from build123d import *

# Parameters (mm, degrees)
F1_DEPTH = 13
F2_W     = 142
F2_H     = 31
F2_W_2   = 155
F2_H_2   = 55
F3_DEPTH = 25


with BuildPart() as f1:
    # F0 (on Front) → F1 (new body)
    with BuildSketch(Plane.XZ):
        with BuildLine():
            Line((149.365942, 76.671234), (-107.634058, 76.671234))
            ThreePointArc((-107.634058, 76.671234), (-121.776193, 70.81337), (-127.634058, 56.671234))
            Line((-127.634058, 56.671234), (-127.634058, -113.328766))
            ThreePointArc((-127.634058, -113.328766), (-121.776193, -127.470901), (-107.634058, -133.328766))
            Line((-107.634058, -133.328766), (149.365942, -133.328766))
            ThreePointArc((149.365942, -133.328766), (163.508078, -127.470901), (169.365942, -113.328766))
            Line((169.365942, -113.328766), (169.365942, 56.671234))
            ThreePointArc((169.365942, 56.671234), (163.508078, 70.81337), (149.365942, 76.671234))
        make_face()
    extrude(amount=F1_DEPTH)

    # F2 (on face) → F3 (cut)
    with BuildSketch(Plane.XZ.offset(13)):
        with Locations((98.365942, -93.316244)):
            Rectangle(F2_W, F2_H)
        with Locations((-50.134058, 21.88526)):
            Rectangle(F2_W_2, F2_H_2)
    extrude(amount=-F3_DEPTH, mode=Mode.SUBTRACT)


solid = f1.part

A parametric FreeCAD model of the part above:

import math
import FreeCAD as App
import Part
import Sketcher

V = App.Vector


def add_polygon(sketch, points):
    """Adds a closed chain of lines whose ends are joined by coincident constraints."""
    first, n = sketch.GeometryCount, len(points)
    for a, b in zip(points, points[1:] + points[:1]):
        sketch.addGeometry(Part.LineSegment(App.Vector(*a, 0), App.Vector(*b, 0)), False)
    for i in range(n):
        sketch.addConstraint(Sketcher.Constraint("Coincident", first + i, 2, first + (i + 1) % n, 1))

doc = App.newDocument("Part")
body = doc.addObject("PartDesign::Body", "Body")

sketch1 = body.newObject("Sketcher::SketchObject", "Sketch")
sketch1.AttachmentSupport = (doc.getObject("XZ_Plane"), [""])
sketch1.MapMode = "FlatFace"
sketch1.addGeometry(Part.LineSegment(V(149, 77, 0), V(-108, 77, 0)), False)
sketch1.addGeometry(Part.ArcOfCircle(Part.Circle(V(-108, 57, 0), V(0, 0, 1), 20), math.radians(90), math.radians(180)), False)
sketch1.addGeometry(Part.LineSegment(V(-128, 57, 0), V(-128, -113, 0)), False)
sketch1.addGeometry(Part.ArcOfCircle(Part.Circle(V(-108, -113, 0), V(0, 0, 1), 20), math.radians(-180), math.radians(-90)), False)
sketch1.addGeometry(Part.LineSegment(V(-108, -133, 0), V(149, -133, 0)), False)
sketch1.addGeometry(Part.ArcOfCircle(Part.Circle(V(149, -113, 0), V(0, 0, 1), 20), math.radians(-90), math.radians(0)), False)
sketch1.addGeometry(Part.LineSegment(V(169, -113, 0), V(169, 57, 0)), False)
sketch1.addGeometry(Part.ArcOfCircle(Part.Circle(V(149, 57, 0), V(0, 0, 1), 20), math.radians(0), math.radians(90)), False)
sketch1.addConstraint(Sketcher.Constraint("Tangent", 0, 2, 1, 1))
sketch1.addConstraint(Sketcher.Constraint("Tangent", 1, 2, 2, 1))
sketch1.addConstraint(Sketcher.Constraint("Tangent", 2, 2, 3, 1))
sketch1.addConstraint(Sketcher.Constraint("Tangent", 3, 2, 4, 1))
sketch1.addConstraint(Sketcher.Constraint("Tangent", 4, 2, 5, 1))
sketch1.addConstraint(Sketcher.Constraint("Tangent", 5, 2, 6, 1))
sketch1.addConstraint(Sketcher.Constraint("Tangent", 6, 2, 7, 1))
sketch1.addConstraint(Sketcher.Constraint("Tangent", 7, 2, 0, 1))
sketch1.addConstraint(Sketcher.Constraint("Horizontal", 0))
sketch1.addConstraint(Sketcher.Constraint("Vertical", 2))
sketch1.addConstraint(Sketcher.Constraint("Horizontal", 4))
sketch1.addConstraint(Sketcher.Constraint("Vertical", 6))
sketch1.addConstraint(Sketcher.Constraint("Equal", 1, 3))
sketch1.addConstraint(Sketcher.Constraint("Equal", 3, 5))
sketch1.addConstraint(Sketcher.Constraint("Equal", 5, 7))
sketch1.addConstraint(Sketcher.Constraint("Radius", 1, 20.0))
sketch1.addConstraint(Sketcher.Constraint("DistanceX", 0, 2, 0, 1, 257.0))
sketch1.addConstraint(Sketcher.Constraint("DistanceY", 2, 2, 2, 1, 170.0))
sketch1.addConstraint(Sketcher.Constraint("DistanceX", -1, 1, 5, 3, 149.365942))
sketch1.addConstraint(Sketcher.Constraint("DistanceY", -1, 1, 1, 3, 56.671234))
pad1 = body.newObject("PartDesign::Pad", "Pad")
pad1.Profile = sketch1
pad1.Length = 13

sketch2 = body.newObject("Sketcher::SketchObject", "Sketch001")
sketch2.AttachmentSupport = (doc.getObject("XZ_Plane"), [""])
sketch2.MapMode = "FlatFace"
sketch2.AttachmentOffset = App.Placement(V(0, 0, 13), App.Rotation())
add_polygon(sketch2, [(27, -78), (27, -109), (169, -109), (169, -78)])
add_polygon(sketch2, [(-128, 49), (-128, -6), (27, -6), (27, 49)])
sketch2.addConstraint(Sketcher.Constraint("Vertical", 0))
sketch2.addConstraint(Sketcher.Constraint("Horizontal", 1))
sketch2.addConstraint(Sketcher.Constraint("Vertical", 2))
sketch2.addConstraint(Sketcher.Constraint("Horizontal", 3))
sketch2.addConstraint(Sketcher.Constraint("Vertical", 4))
sketch2.addConstraint(Sketcher.Constraint("Horizontal", 5))
sketch2.addConstraint(Sketcher.Constraint("Vertical", 6))
sketch2.addConstraint(Sketcher.Constraint("Horizontal", 7))
sketch2.addConstraint(Sketcher.Constraint("Vertical", 3, 2, 5, 2))
sketch2.addConstraint(Sketcher.Constraint("DistanceX", 1, 1, 1, 2, 142.0))
sketch2.addConstraint(Sketcher.Constraint("DistanceX", 5, 1, 5, 2, 155.0))
sketch2.addConstraint(Sketcher.Constraint("DistanceY", 0, 2, 0, 1, 31.0))
sketch2.addConstraint(Sketcher.Constraint("DistanceY", 4, 2, 4, 1, 55.0))
sketch2.addConstraint(Sketcher.Constraint("DistanceX", -1, 1, 1, 2, 169.365942))
sketch2.addConstraint(Sketcher.Constraint("DistanceY", 4, 2, -1, 1, 5.61474))
sketch2.addConstraint(Sketcher.Constraint("DistanceY", 0, 2, -1, 1, 108.816244))
pocket1 = body.newObject("PartDesign::Pocket", "Pocket")
pocket1.Profile = sketch2
pocket1.Length = 25

doc.recompute()
